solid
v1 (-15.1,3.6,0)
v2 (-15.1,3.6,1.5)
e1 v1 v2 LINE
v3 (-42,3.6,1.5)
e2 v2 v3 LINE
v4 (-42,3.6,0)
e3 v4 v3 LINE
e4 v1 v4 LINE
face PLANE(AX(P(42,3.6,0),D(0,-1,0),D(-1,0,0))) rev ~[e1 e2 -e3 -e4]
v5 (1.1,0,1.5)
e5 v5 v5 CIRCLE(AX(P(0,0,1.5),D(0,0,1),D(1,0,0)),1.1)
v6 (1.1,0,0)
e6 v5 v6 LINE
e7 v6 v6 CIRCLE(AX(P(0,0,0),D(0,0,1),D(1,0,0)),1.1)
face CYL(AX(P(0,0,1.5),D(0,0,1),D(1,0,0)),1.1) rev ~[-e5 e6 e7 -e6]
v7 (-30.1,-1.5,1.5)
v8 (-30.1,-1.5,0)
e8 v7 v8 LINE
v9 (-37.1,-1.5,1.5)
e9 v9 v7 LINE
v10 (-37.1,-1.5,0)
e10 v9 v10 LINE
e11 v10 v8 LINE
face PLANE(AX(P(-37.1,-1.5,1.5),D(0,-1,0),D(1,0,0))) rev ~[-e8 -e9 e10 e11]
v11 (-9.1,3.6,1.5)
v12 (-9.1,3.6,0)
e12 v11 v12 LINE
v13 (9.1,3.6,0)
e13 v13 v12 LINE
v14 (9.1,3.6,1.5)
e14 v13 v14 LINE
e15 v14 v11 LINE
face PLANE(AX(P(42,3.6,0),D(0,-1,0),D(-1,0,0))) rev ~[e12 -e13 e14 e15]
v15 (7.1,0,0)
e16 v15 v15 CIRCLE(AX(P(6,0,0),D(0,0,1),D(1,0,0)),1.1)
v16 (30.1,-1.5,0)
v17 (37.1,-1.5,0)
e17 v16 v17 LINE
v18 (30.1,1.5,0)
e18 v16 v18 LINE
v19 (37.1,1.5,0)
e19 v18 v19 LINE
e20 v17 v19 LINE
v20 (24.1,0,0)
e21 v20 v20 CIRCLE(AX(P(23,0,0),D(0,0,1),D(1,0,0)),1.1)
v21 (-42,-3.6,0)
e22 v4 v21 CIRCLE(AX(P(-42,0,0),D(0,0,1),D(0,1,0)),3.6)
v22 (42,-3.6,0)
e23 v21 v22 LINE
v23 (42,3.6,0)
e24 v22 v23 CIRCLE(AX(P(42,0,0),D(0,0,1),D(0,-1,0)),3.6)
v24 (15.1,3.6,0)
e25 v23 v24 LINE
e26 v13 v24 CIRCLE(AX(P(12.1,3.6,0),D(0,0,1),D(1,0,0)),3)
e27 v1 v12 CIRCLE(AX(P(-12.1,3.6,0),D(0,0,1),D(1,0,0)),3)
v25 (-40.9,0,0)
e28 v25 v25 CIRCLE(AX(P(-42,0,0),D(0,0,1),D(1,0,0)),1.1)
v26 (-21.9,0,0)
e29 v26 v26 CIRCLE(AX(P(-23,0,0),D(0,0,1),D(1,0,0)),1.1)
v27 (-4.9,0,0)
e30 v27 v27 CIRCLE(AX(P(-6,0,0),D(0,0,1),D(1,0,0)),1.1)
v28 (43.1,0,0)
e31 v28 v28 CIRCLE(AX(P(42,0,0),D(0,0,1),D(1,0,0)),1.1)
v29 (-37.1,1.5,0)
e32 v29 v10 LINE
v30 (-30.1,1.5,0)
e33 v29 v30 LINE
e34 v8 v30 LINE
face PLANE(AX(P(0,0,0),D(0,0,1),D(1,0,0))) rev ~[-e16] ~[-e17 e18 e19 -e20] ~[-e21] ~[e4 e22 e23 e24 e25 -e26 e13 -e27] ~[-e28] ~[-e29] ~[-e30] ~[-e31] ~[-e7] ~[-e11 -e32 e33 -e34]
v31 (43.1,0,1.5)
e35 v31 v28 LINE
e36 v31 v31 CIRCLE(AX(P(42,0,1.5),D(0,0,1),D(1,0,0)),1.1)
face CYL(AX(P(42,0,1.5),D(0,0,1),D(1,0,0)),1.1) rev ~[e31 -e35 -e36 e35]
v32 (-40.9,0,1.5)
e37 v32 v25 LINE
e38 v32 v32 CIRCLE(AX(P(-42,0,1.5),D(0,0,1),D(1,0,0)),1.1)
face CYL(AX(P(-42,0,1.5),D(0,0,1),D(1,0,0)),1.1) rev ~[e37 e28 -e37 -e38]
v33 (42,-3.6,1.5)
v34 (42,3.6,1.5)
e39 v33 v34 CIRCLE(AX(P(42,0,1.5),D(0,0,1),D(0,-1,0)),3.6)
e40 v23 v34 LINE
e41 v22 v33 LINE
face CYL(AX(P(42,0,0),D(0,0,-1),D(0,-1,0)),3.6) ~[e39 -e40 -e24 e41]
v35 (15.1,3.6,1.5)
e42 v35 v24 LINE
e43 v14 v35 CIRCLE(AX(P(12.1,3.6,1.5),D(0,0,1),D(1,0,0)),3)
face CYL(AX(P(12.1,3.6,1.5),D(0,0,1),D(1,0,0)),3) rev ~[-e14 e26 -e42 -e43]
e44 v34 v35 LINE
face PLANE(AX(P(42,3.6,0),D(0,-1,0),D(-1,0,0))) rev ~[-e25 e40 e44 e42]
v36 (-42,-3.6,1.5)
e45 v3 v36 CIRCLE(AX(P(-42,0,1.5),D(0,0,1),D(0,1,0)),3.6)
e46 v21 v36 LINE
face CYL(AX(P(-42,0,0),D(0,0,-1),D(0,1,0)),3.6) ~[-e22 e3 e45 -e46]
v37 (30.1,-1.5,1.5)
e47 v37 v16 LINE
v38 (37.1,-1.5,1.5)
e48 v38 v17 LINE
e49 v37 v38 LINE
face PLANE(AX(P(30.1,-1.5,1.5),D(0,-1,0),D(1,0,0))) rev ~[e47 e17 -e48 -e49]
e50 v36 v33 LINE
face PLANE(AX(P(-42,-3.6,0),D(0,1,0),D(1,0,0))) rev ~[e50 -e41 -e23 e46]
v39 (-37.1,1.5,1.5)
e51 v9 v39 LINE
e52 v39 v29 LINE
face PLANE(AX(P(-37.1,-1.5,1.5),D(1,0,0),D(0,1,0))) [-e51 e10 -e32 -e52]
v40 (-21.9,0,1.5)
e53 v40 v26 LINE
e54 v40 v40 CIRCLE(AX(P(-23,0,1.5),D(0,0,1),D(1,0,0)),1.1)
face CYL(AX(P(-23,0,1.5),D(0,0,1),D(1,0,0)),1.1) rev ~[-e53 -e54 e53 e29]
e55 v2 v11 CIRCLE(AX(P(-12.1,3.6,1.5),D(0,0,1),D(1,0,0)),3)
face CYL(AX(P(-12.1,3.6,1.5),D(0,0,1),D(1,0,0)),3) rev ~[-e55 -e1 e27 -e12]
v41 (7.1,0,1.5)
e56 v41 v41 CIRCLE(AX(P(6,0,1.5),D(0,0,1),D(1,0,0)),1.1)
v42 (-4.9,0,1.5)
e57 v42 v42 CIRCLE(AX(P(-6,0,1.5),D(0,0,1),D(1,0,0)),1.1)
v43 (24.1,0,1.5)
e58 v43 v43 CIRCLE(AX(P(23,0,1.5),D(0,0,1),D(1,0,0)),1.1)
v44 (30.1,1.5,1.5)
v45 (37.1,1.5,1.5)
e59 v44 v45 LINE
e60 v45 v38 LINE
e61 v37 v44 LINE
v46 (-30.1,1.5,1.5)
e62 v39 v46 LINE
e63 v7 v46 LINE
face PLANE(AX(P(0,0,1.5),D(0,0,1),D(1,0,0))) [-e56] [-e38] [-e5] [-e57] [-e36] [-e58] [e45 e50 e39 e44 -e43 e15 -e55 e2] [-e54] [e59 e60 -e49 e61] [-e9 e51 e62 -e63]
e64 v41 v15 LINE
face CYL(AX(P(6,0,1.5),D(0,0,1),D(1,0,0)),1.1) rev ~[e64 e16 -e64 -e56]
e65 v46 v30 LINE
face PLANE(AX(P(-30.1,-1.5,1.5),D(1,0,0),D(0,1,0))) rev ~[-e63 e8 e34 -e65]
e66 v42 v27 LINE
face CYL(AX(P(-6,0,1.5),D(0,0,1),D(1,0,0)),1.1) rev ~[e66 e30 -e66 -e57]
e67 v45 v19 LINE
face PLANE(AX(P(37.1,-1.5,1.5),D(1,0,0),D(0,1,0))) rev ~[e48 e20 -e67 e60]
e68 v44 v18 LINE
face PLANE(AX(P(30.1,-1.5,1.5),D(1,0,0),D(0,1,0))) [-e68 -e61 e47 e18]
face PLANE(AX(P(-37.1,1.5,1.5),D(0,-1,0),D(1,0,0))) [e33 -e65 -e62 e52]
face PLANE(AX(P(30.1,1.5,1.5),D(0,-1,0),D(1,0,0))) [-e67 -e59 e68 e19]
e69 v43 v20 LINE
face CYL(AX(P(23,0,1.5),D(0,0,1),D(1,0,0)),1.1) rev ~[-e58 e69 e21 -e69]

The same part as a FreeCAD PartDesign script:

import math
import FreeCAD as App
import Part
import Sketcher

doc = App.newDocument("Part")
body = doc.addObject("PartDesign::Body", "Body")

# Sketch on XY plane
sketch1 = body.newObject("Sketcher::SketchObject", "Sketch")
sketch1.AttachmentSupport = (doc.getObject("XY_Plane"), [""])
sketch1.MapMode = "FlatFace"
sketch1.addGeometry([
    Part.LineSegment(App.Vector(42, 3.6, 0), App.Vector(-42, 3.6, 0)),
    Part.ArcOfCircle(Part.Circle(App.Vector(-42, 0, 0), App.Vector(0, 0, 1), 3.6), math.radians(90), math.radians(270)),
    Part.LineSegment(App.Vector(-42, -3.6, 0), App.Vector(42, -3.6, 0)),
    Part.ArcOfCircle(Part.Circle(App.Vector(42, 0, 0), App.Vector(0, 0, 1), 3.6), math.radians(-90), math.radians(90)),
], False)
sketch1.addConstraint([
    Sketcher.Constraint("Tangent", 0, 2, 1, 1),
    Sketcher.Constraint("Tangent", 1, 2, 2, 1),
    Sketcher.Constraint("Tangent", 2, 2, 3, 1),
    Sketcher.Constraint("Tangent", 3, 2, 0, 1),
    Sketcher.Constraint("Horizontal", 0),
    Sketcher.Constraint("Horizontal", 2),
    Sketcher.Constraint("Symmetric", 1, 3, 3, 3, -1, 1),
    Sketcher.Constraint("Radius", 1, 3.6),
    Sketcher.Constraint("DistanceX", 0, 2, 0, 1, 84.0),
])
pad1 = body.newObject("PartDesign::Pad", "Pad")
pad1.Profile = sketch1
pad1.Length = 1.5

# Sketch on XY plane
sketch2 = body.newObject("Sketcher::SketchObject", "Sketch001")
sketch2.AttachmentSupport = (doc.getObject("XY_Plane"), [""])
sketch2.MapMode = "FlatFace"
sketch2.AttachmentOffset = App.Placement(App.Vector(0, 0, 1.5), App.Rotation())
sketch2.addGeometry([
    Part.Circle(App.Vector(-42, 0, 0), App.Vector(0, 0, 1), 1.1),  # 0
    Part.Circle(App.Vector(42, 0, 0), App.Vector(0, 0, 1), 1.1),  # 1
    Part.Circle(App.Vector(0, 0, 0), App.Vector(0, 0, 1), 1.1),  # 2
    Part.Circle(App.Vector(-36, 0, 0), App.Vector(0, 0, 1), 1.1),  # 3
    Part.Circle(App.Vector(36, 0, 0), App.Vector(0, 0, 1), 1.1),  # 4
    Part.Circle(App.Vector(-23, 0, 0), App.Vector(0, 0, 1), 1.1),  # 5
    Part.Circle(App.Vector(23, 0, 0), App.Vector(0, 0, 1), 1.1),  # 6
    Part.Circle(App.Vector(-6, 0, 0), App.Vector(0, 0, 1), 1.1),  # 7
    Part.Circle(App.Vector(6, 0, 0), App.Vector(0, 0, 1), 1.1),  # 8
], False)
sketch2.addConstraint([
    Sketcher.Constraint("Coincident", 2, 3, -1, 1),
    Sketcher.Constraint("Equal", 0, 1),
    Sketcher.Constraint("Equal", 1, 2),
    Sketcher.Constraint("Equal", 2, 3),
    Sketcher.Constraint("Equal", 3, 4),
    Sketcher.Constraint("Equal", 4, 5),
    Sketcher.Constraint("Equal", 5, 6),
    Sketcher.Constraint("Equal", 6, 7),
    Sketcher.Constraint("Equal", 7, 8),
    Sketcher.Constraint("Symmetric", 0, 3, 1, 3, -1, 1),
    Sketcher.Constraint("Symmetric", 3, 3, 4, 3, -1, 1),
    Sketcher.Constraint("Symmetric", 5, 3, 6, 3, -1, 1),
    Sketcher.Constraint("Symmetric", 7, 3, 8, 3, -1, 1),
    Sketcher.Constraint("PointOnObject", 0, 3, -1),
    Sketcher.Constraint("PointOnObject", 3, 3, -1),
    Sketcher.Constraint("PointOnObject", 5, 3, -1),
    Sketcher.Constraint("PointOnObject", 7, 3, -1),
    Sketcher.Constraint("Diameter", 0, 2.2),
    Sketcher.Constraint("DistanceX", 0, 3, -1, 1, 42.0),
    Sketcher.Constraint("DistanceX", 3, 3, -1, 1, 36.0),
    Sketcher.Constraint("DistanceX", 5, 3, -1, 1, 23.0),
    Sketcher.Constraint("DistanceX", 7, 3, -1, 1, 6.0),
])
pocket1 = body.newObject("PartDesign::Pocket", "Pocket")
pocket1.Profile = sketch2
pocket1.Type = "ThroughAll"

# Sketch on XY plane
sketch3 = body.newObject("Sketcher::SketchObject", "Sketch002")
sketch3.AttachmentSupport = (doc.getObject("XY_Plane"), [""])
sketch3.MapMode = "FlatFace"
sketch3.AttachmentOffset = App.Placement(App.Vector(0, 0, 1.5), App.Rotation())
sketch3.addGeometry([
    Part.LineSegment(App.Vector(-37.1, 1.5, 0), App.Vector(-37.1, -1.5, 0)),  # 0
    Part.LineSegment(App.Vector(-37.1, -1.5, 0), App.Vector(-30.1, -1.5, 0)),  # 1
    Part.LineSegment(App.Vector(-30.1, -1.5, 0), App.Vector(-30.1, 1.5, 0)),  # 2
    Part.LineSegment(App.Vector(-30.1, 1.5, 0), App.Vector(-37.1, 1.5, 0)),  # 3
    Part.Circle(App.Vector(-12.1, 3.6, 0), App.Vector(0, 0, 1), 3),  # 4
    Part.LineSegment(App.Vector(30.1, 1.5, 0), App.Vector(30.1, -1.5, 0)),  # 5
    Part.LineSegment(App.Vector(30.1, -1.5, 0), App.Vector(37.1, -1.5, 0)),  # 6
    Part.LineSegment(App.Vector(37.1, -1.5, 0), App.Vector(37.1, 1.5, 0)),  # 7
    Part.LineSegment(App.Vector(37.1, 1.5, 0), App.Vector(30.1, 1.5, 0)),  # 8
    Part.Circle(App.Vector(12.1, 3.6, 0), App.Vector(0, 0, 1), 3),  # 9
], False)
sketch3.addConstraint([
    Sketcher.Constraint("Coincident", 0, 2, 1, 1),
    Sketcher.Constraint("Coincident", 1, 2, 2, 1),
    Sketcher.Constraint("Coincident", 2, 2, 3, 1),
    Sketcher.Constraint("Coincident", 3, 2, 0, 1),
    Sketcher.Constraint("Coincident", 5, 2, 6, 1),
    Sketcher.Constraint("Coincident", 6, 2, 7, 1),
    Sketcher.Constraint("Coincident", 7, 2, 8, 1),
    Sketcher.Constraint("Coincident", 8, 2, 5, 1),
    Sketcher.Constraint("Vertical", 0),
    Sketcher.Constraint("Horizontal", 1),
    Sketcher.Constraint("Vertical", 2),
    Sketcher.Constraint("Horizontal", 3),
    Sketcher.Constraint("Vertical", 5),
    Sketcher.Constraint("Horizontal", 6),
    Sketcher.Constraint("Vertical", 7),
    Sketcher.Constraint("Horizontal", 8),
    Sketcher.Constraint("Equal", 4, 9),
    Sketcher.Constraint("Symmetric", 2, 2, 5, 2, -1, 1),
    Sketcher.Constraint("Symmetric", 0, 2, 7, 2, -1, 1),
    Sketcher.Constraint("Symmetric", 4, 3, 9, 3, -2),
    Sketcher.Constraint("Horizontal", 1, 2, 5, 2),
    Sketcher.Constraint("Diameter", 4, 6.0),
    Sketcher.Constraint("DistanceX", 1, 1, 1, 2, 7.0),
    Sketcher.Constraint("DistanceY", 0, 2, 0, 1, 3.0),
    Sketcher.Constraint("DistanceX", 0, 2, 4, 3, 25.0),
    Sketcher.Constraint("DistanceX", 4, 3, -1, 1, 12.1),
    Sketcher.Constraint("DistanceY", -1, 1, 4, 3, 3.6),
])
pocket2 = body.newObject("PartDesign::Pocket", "Pocket001")
pocket2.Profile = sketch3
pocket2.Type = "ThroughAll"

doc.recompute()
